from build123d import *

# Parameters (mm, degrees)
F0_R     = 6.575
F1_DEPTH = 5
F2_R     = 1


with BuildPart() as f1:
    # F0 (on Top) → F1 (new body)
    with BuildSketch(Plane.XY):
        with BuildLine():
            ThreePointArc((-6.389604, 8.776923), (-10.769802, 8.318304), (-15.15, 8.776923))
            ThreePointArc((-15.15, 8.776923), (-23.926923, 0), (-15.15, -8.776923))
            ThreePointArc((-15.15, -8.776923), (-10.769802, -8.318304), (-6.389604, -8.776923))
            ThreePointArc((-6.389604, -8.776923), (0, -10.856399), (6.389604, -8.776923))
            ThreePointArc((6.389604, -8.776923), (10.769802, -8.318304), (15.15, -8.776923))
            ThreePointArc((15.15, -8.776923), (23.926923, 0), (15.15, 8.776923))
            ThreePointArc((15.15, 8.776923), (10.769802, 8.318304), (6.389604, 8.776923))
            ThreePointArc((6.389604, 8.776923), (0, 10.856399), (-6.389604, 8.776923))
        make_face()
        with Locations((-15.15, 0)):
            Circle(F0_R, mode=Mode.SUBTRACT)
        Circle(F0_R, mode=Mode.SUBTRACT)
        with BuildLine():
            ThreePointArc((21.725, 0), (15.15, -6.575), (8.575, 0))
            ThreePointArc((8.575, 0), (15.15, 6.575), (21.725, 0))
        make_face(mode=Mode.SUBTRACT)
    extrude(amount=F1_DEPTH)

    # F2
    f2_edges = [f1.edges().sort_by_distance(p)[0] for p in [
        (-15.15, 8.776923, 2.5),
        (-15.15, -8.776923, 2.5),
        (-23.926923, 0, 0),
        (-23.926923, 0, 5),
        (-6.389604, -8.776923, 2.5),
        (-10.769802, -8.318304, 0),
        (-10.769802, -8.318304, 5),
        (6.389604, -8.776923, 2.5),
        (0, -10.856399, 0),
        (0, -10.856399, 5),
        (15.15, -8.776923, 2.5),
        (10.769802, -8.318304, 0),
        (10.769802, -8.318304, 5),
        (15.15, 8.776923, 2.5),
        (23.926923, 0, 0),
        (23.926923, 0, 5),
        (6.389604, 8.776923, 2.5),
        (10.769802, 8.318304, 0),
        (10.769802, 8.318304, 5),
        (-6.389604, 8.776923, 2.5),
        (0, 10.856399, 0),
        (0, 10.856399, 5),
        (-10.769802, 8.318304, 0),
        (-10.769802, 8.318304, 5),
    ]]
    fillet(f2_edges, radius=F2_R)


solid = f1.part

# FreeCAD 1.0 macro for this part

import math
import FreeCAD as App
import Part
import Sketcher


def edges_at(feature, points):
    """Names of the edges that pass closest to the given points."""
    edges = feature.Shape.Edges
    near = lambda p: min(range(len(edges)), key=lambda i: edges[i].distToShape(Part.Vertex(*p))[0])
    return sorted({f"Edge{near(p) + 1}" for p in points})

doc = App.newDocument("Part")
body = doc.addObject("PartDesign::Body", "Body")

# Sketch on XY plane
sketch1 = body.newObject("Sketcher::SketchObject", "Sketch")
sketch1.AttachmentSupport = (doc.getObject("XY_Plane"), [""])
sketch1.MapMode = "FlatFace"
sketch1.addGeometry(Part.ArcOfCircle(Part.Circle(App.Vector(-10.769802, 29.464905, 0), App.Vector(0, 0, 1), 21.146601), math.radians(-101.9545), math.radians(-78.0455)), False)
sketch1.addGeometry(Part.ArcOfCircle(Part.Circle(App.Vector(-15.15, 0, 0), App.Vector(0, 0, 1), 8.776923), math.radians(90), math.radians(270)), False)
sketch1.addGeometry(Part.ArcOfCircle(Part.Circle(App.Vector(-10.769802, -29.464905, 0), App.Vector(0, 0, 1), 21.146601), math.radians(78.0455), math.radians(101.9545)), False)
sketch1.addGeometry(Part.ArcOfCircle(Part.Circle(App.Vector(0, 0.000004, 0), App.Vector(0, 0, 1), 10.856403), math.radians(-126.054622), math.radians(-53.945378)), False)
sketch1.addGeometry(Part.ArcOfCircle(Part.Circle(App.Vector(10.769802, -29.464905, 0), App.Vector(0, 0, 1), 21.146601), math.radians(78.0455), math.radians(101.9545)), False)
sketch1.addGeometry(Part.ArcOfCircle(Part.Circle(App.Vector(15.15, 0, 0), App.Vector(0, 0, 1), 8.776923), math.radians(-90), math.radians(90)), False)
sketch1.addGeometry(Part.ArcOfCircle(Part.Circle(App.Vector(10.769802, 29.464905, 0), App.Vector(0, 0, 1), 21.146601), math.radians(-101.9545), math.radians(-78.0455)), False)
sketch1.addGeometry(Part.ArcOfCircle(Part.Circle(App.Vector(0, -0.000004, 0), App.Vector(0, 0, 1), 10.856403), math.radians(53.945378), math.radians(126.054622)), False)
sketch1.addGeometry(Part.Circle(App.Vector(-15.15, 0, 0), App.Vector(0, 0, 1), 6.575), False)
sketch1.addGeometry(Part.Circle(App.Vector(0, 0, 0), App.Vector(0, 0, 1), 6.575), False)
sketch1.addGeometry(Part.Circle(App.Vector(15.15, 0, 0), App.Vector(0, 0, 1), 6.575), False)
sketch1.addConstraint(Sketcher.Constraint("Coincident", 0, 1, 1, 1))
sketch1.addConstraint(Sketcher.Constraint("Coincident", 1, 2, 2, 2))
sketch1.addConstraint(Sketcher.Constraint("Coincident", 2, 1, 3, 1))
sketch1.addConstraint(Sketcher.Constraint("Coincident", 3, 2, 4, 2))
sketch1.addConstraint(Sketcher.Constraint("Coincident", 4, 1, 5, 1))
sketch1.addConstraint(Sketcher.Constraint("Coincident", 5, 2, 6, 2))
sketch1.addConstraint(Sketcher.Constraint("Coincident", 6, 1, 7, 1))
sketch1.addConstraint(Sketcher.Constraint("Coincident", 7, 2, 0, 2))
sketch1.addConstraint(Sketcher.Constraint("Coincident", 3, 3, -1, 1))
sketch1.addConstraint(Sketcher.Constraint("Coincident", 7, 3, -1, 1))
sketch1.addConstraint(Sketcher.Constraint("Coincident", 9, 3, -1, 1))
sketch1.addConstraint(Sketcher.Constraint("Coincident", 8, 3, 1, 3))
sketch1.addConstraint(Sketcher.Constraint("Coincident", 10, 3, 5, 3))
sketch1.addConstraint(Sketcher.Constraint("Equal", 0, 2))
sketch1.addConstraint(Sketcher.Constraint("Equal", 2, 4))
sketch1.addConstraint(Sketcher.Constraint("Equal", 1, 5))
sketch1.addConstraint(Sketcher.Constraint("Equal", 4, 6))
sketch1.addConstraint(Sketcher.Constraint("Equal", 3, 7))
sketch1.addConstraint(Sketcher.Constraint("Equal", 8, 9))
sketch1.addConstraint(Sketcher.Constraint("Equal", 9, 10))
sketch1.addConstraint(Sketcher.Constraint("Symmetric", 0, 3, 4, 3, -1, 1))
sketch1.addConstraint(Sketcher.Constraint("Symmetric", 1, 3, 5, 3, -1, 1))
sketch1.addConstraint(Sketcher.Constraint("Symmetric", 2, 3, 6, 3, -1, 1))
sketch1.addConstraint(Sketcher.Constraint("Symmetric", 2, 3, 4, 3, -2))
sketch1.addConstraint(Sketcher.Constraint("PointOnObject", 1, 3, -1))
sketch1.addConstraint(Sketcher.Constraint("Horizontal", 1, 2, 2, 1))
sketch1.addConstraint(Sketcher.Constraint("Vertical", 8, 3, 0, 1))
sketch1.addConstraint(Sketcher.Constraint("Diameter", 8, 13.15))
sketch1.addConstraint(Sketcher.Constraint("Radius", 0, 21.146601))
sketch1.addConstraint(Sketcher.Constraint("DistanceX", 1, 3, 5, 3, 30.3))
sketch1.addConstraint(Sketcher.Constraint("Radius", 1, 8.776923))
sketch1.addConstraint(Sketcher.Constraint("Radius", 3, 10.856403))
pad1 = body.newObject("PartDesign::Pad", "Pad")
pad1.Profile = sketch1
pad1.Length = 5
doc.recompute()

fillet = body.newObject("PartDesign::Fillet", "Fillet")
fillet.Base = (pad1, edges_at(pad1, [
    (-15.15, 8.777, 2.5),
    (-15.15, -8.777, 2.5),
    (-23.927, 0, 0),
    (-23.927, 0, 5),
    (-6.39, -8.777, 2.5),
    (-10.77, -8.318, 0),
    (-10.77, -8.318, 5),
    (6.39, -8.777, 2.5),
    (0, -10.856, 0),
    (0, -10.856, 5),
    (15.15, -8.777, 2.5),
    (10.77, -8.318, 0),
    (10.77, -8.318, 5),
    (15.15, 8.777, 2.5),
    (23.927, 0, 0),
    (23.927, 0, 5),
    (6.39, 8.777, 2.5),
    (10.77, 8.318, 0),
    (10.77, 8.318, 5),
    (-6.39, 8.777, 2.5),
    (0, 10.856, 0),
    (0, 10.856, 5),
    (-10.77, 8.318, 0),
    (-10.77, 8.318, 5),
]))
fillet.Radius = 1

doc.recompute()
